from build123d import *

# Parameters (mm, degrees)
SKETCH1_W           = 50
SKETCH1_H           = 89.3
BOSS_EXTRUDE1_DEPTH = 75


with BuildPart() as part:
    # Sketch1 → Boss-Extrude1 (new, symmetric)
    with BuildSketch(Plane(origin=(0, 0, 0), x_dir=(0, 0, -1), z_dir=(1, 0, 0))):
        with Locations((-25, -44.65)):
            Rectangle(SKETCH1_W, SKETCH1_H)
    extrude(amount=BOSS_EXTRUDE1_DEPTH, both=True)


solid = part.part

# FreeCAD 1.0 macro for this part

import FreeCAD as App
import Part
import Sketcher

V = App.Vector
Q = App.Units.Quantity

doc = App.newDocument("Part")
params = doc.addObject("Spreadsheet::Sheet", "Params")
for row, (alias, value) in enumerate([
    ("sketch1_height", "50 mm"),
    ("sketch1_width", "89.3 mm"),
    ("pad1_length", "150 mm"),
], start=1):
    params.set(f"A{row}", alias)
    params.set(f"B{row}", "=" + value)
    params.setAlias(f"B{row}", alias)

body = doc.addObject("PartDesign::Body", "Body")

# Sketch on YZ plane
sketch1 = body.newObject("Sketcher::SketchObject", "Sketch")
sketch1.AttachmentSupport = (doc.getObject("YZ_Plane"), [""])
sketch1.MapMode = "FlatFace"
sketch1.addGeometry(Part.LineSegment(V(0, 50, 0), V(-89.3, 50, 0)), False)
sketch1.addGeometry(Part.LineSegment(V(-89.3, 50, 0), V(-89.3, 0, 0)), False)
sketch1.addGeometry(Part.LineSegment(V(-89.3, 0, 0), V(0, 0, 0)), False)
sketch1.addGeometry(Part.LineSegment(V(0, 0, 0), V(0, 50, 0)), False)
sketch1.addConstraint(Sketcher.Constraint("Coincident", 0, 2, 1, 1))
sketch1.addConstraint(Sketcher.Constraint("Coincident", 1, 2, 2, 1))
sketch1.addConstraint(Sketcher.Constraint("Coincident", 2, 2, 3, 1))
sketch1.addConstraint(Sketcher.Constraint("Coincident", 3, 2, 0, 1))
sketch1.addConstraint(Sketcher.Constraint("Horizontal", 0))
sketch1.addConstraint(Sketcher.Constraint("Vertical", 1))
sketch1.addConstraint(Sketcher.Constraint("Horizontal", 2))
sketch1.addConstraint(Sketcher.Constraint("Vertical", 3))
sketch1.addConstraint(Sketcher.Constraint("Coincident", 2, 2, -1, 1))
sketch1.addConstraint(Sketcher.Constraint("DistanceY", 1, 2, 1, 1, Q("50 mm")))
sketch1.addConstraint(Sketcher.Constraint("DistanceX", 0, 2, 0, 1, Q("89.3 mm")))
sketch1.setExpression("Constraints[9]", "Params.sketch1_height")
sketch1.setExpression("Constraints[10]", "Params.sketch1_width")
pad1 = body.newObject("PartDesign::Pad", "Pad")
pad1.Profile = sketch1
pad1.setExpression("Length", "Params.pad1_length")
pad1.Midplane = True

doc.recompute()
